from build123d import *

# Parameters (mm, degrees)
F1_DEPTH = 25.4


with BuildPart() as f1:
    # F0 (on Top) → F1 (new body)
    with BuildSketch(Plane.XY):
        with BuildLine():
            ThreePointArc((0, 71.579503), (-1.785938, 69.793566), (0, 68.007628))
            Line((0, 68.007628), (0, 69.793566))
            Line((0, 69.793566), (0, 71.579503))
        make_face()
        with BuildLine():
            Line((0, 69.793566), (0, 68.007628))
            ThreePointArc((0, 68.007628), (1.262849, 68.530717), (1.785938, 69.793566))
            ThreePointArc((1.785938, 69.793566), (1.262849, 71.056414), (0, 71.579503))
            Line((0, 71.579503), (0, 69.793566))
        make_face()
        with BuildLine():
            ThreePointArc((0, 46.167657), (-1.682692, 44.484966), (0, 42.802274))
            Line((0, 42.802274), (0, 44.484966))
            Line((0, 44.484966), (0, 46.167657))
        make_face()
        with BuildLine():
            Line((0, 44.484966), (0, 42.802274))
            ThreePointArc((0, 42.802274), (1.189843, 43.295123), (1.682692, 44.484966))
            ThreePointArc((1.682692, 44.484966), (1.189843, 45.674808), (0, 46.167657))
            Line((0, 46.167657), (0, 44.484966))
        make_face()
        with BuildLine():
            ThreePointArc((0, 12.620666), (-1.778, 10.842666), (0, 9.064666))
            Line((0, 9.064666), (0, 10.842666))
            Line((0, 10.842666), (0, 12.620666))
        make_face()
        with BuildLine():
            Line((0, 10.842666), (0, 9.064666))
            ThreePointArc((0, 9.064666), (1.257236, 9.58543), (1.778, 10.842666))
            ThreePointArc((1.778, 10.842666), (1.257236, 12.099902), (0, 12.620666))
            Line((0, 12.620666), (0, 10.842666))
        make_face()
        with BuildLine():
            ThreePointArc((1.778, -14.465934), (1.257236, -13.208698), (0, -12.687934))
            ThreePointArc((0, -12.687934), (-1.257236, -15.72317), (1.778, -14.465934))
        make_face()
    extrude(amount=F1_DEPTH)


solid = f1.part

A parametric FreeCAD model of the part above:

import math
import FreeCAD as App
import Part
import Sketcher
from FreeCAD import Vector
Q = App.Units.Quantity

doc = App.newDocument("Part")
body = doc.addObject("PartDesign::Body", "Body")
body.AllowCompound = True

# Sketch on XY plane
sketch1 = doc.addObject("Sketcher::SketchObject", "Sketch")
body.addObject(sketch1)
sketch1.AttachmentSupport = (doc.XY_Plane, [""])
sketch1.MapMode = "FlatFace"
sketch1.addGeometry([
    Part.ArcOfCircle(Part.Circle(Vector(0, 69.8, 0), Vector(0, 0, 1), 1.8), math.radians(90), math.radians(270)),  # 0
    Part.ArcOfCircle(Part.Circle(Vector(0, 69.8, 0), Vector(0, 0, 1), 1.8), math.radians(-90), math.radians(0)),  # 1
    Part.ArcOfCircle(Part.Circle(Vector(0, 69.8, 0), Vector(0, 0, 1), 1.8), math.radians(0), math.radians(90)),  # 2
    Part.ArcOfCircle(Part.Circle(Vector(0, 44.5, 0), Vector(0, 0, 1), 1.7), math.radians(90), math.radians(270)),  # 3
    Part.ArcOfCircle(Part.Circle(Vector(0, 44.5, 0), Vector(0, 0, 1), 1.7), math.radians(-90), math.radians(0)),  # 4
    Part.ArcOfCircle(Part.Circle(Vector(0, 44.5, 0), Vector(0, 0, 1), 1.7), math.radians(0), math.radians(90)),  # 5
    Part.ArcOfCircle(Part.Circle(Vector(0, 10.8, 0), Vector(0, 0, 1), 1.8), math.radians(90), math.radians(270)),  # 6
    Part.ArcOfCircle(Part.Circle(Vector(0, 10.8, 0), Vector(0, 0, 1), 1.8), math.radians(-90), math.radians(0)),  # 7
    Part.ArcOfCircle(Part.Circle(Vector(0, 10.8, 0), Vector(0, 0, 1), 1.8), math.radians(0), math.radians(90)),  # 8
    Part.ArcOfCircle(Part.Circle(Vector(0, -14.5, 0), Vector(0, 0, 1), 1.8), math.radians(0), math.radians(90)),  # 9
    Part.ArcOfCircle(Part.Circle(Vector(0, -14.5, 0), Vector(0, 0, 1), 1.8), math.radians(90), math.radians(360)),  # 10
], False)
sketch1.addConstraint([
    Sketcher.Constraint("Tangent", 0, 2, 1, 1),
    Sketcher.Constraint("Tangent", 1, 2, 2, 1),
    Sketcher.Constraint("Tangent", 2, 2, 0, 1),
    Sketcher.Constraint("Tangent", 3, 2, 4, 1),
    Sketcher.Constraint("Tangent", 4, 2, 5, 1),
    Sketcher.Constraint("Tangent", 5, 2, 3, 1),
    Sketcher.Constraint("Tangent", 6, 2, 7, 1),
    Sketcher.Constraint("Tangent", 7, 2, 8, 1),
    Sketcher.Constraint("Tangent", 8, 2, 6, 1),
    Sketcher.Constraint("Tangent", 9, 1, 10, 2),
    Sketcher.Constraint("Coincident", 10, 1, 9, 2),
    Sketcher.Constraint("Equal", 8, 9),
    Sketcher.Constraint("PointOnObject", 0, 3, -2),
    Sketcher.Constraint("PointOnObject", 3, 3, -2),
    Sketcher.Constraint("PointOnObject", 6, 3, -2),
    Sketcher.Constraint("PointOnObject", 9, 3, -2),
    Sketcher.Constraint("PointOnObject", 0, 2, -2),
    Sketcher.Constraint("PointOnObject", 2, 2, -2),
    Sketcher.Constraint("PointOnObject", 3, 2, -2),
    Sketcher.Constraint("PointOnObject", 5, 2, -2),
    Sketcher.Constraint("PointOnObject", 6, 2, -2),
    Sketcher.Constraint("PointOnObject", 8, 2, -2),
    Sketcher.Constraint("PointOnObject", 10, 1, -2),
    Sketcher.Constraint("Horizontal", 2, 3, 1, 2),
    Sketcher.Constraint("Horizontal", 5, 3, 4, 2),
    Sketcher.Constraint("Horizontal", 8, 3, 7, 2),
    Sketcher.Constraint("Horizontal", 10, 3, 9, 1),
    Sketcher.Constraint("Radius", 6, Q("0.07 in")),
    Sketcher.Constraint("Radius", 3, Q("1.682692 mm")),
    Sketcher.Constraint("DistanceY", 0, 2, 2, 2, Q("0.140625 in")),
    Sketcher.Constraint("DistanceY", 6, 3, 5, 3, Q("1.3245 in")),
    Sketcher.Constraint("DistanceY", 3, 3, 2, 3, Q("25.3086 mm")),
    Sketcher.Constraint("DistanceY", 9, 3, 7, 3, Q("25.308599 mm")),
    Sketcher.Constraint("DistanceY", -1, 1, 0, 2, Q("68.007628 mm")),
])
pad1 = doc.addObject("PartDesign::Pad", "Pad")
body.addObject(pad1)
pad1.Profile = sketch1
pad1.Length = Q("1 in")

doc.recompute()
